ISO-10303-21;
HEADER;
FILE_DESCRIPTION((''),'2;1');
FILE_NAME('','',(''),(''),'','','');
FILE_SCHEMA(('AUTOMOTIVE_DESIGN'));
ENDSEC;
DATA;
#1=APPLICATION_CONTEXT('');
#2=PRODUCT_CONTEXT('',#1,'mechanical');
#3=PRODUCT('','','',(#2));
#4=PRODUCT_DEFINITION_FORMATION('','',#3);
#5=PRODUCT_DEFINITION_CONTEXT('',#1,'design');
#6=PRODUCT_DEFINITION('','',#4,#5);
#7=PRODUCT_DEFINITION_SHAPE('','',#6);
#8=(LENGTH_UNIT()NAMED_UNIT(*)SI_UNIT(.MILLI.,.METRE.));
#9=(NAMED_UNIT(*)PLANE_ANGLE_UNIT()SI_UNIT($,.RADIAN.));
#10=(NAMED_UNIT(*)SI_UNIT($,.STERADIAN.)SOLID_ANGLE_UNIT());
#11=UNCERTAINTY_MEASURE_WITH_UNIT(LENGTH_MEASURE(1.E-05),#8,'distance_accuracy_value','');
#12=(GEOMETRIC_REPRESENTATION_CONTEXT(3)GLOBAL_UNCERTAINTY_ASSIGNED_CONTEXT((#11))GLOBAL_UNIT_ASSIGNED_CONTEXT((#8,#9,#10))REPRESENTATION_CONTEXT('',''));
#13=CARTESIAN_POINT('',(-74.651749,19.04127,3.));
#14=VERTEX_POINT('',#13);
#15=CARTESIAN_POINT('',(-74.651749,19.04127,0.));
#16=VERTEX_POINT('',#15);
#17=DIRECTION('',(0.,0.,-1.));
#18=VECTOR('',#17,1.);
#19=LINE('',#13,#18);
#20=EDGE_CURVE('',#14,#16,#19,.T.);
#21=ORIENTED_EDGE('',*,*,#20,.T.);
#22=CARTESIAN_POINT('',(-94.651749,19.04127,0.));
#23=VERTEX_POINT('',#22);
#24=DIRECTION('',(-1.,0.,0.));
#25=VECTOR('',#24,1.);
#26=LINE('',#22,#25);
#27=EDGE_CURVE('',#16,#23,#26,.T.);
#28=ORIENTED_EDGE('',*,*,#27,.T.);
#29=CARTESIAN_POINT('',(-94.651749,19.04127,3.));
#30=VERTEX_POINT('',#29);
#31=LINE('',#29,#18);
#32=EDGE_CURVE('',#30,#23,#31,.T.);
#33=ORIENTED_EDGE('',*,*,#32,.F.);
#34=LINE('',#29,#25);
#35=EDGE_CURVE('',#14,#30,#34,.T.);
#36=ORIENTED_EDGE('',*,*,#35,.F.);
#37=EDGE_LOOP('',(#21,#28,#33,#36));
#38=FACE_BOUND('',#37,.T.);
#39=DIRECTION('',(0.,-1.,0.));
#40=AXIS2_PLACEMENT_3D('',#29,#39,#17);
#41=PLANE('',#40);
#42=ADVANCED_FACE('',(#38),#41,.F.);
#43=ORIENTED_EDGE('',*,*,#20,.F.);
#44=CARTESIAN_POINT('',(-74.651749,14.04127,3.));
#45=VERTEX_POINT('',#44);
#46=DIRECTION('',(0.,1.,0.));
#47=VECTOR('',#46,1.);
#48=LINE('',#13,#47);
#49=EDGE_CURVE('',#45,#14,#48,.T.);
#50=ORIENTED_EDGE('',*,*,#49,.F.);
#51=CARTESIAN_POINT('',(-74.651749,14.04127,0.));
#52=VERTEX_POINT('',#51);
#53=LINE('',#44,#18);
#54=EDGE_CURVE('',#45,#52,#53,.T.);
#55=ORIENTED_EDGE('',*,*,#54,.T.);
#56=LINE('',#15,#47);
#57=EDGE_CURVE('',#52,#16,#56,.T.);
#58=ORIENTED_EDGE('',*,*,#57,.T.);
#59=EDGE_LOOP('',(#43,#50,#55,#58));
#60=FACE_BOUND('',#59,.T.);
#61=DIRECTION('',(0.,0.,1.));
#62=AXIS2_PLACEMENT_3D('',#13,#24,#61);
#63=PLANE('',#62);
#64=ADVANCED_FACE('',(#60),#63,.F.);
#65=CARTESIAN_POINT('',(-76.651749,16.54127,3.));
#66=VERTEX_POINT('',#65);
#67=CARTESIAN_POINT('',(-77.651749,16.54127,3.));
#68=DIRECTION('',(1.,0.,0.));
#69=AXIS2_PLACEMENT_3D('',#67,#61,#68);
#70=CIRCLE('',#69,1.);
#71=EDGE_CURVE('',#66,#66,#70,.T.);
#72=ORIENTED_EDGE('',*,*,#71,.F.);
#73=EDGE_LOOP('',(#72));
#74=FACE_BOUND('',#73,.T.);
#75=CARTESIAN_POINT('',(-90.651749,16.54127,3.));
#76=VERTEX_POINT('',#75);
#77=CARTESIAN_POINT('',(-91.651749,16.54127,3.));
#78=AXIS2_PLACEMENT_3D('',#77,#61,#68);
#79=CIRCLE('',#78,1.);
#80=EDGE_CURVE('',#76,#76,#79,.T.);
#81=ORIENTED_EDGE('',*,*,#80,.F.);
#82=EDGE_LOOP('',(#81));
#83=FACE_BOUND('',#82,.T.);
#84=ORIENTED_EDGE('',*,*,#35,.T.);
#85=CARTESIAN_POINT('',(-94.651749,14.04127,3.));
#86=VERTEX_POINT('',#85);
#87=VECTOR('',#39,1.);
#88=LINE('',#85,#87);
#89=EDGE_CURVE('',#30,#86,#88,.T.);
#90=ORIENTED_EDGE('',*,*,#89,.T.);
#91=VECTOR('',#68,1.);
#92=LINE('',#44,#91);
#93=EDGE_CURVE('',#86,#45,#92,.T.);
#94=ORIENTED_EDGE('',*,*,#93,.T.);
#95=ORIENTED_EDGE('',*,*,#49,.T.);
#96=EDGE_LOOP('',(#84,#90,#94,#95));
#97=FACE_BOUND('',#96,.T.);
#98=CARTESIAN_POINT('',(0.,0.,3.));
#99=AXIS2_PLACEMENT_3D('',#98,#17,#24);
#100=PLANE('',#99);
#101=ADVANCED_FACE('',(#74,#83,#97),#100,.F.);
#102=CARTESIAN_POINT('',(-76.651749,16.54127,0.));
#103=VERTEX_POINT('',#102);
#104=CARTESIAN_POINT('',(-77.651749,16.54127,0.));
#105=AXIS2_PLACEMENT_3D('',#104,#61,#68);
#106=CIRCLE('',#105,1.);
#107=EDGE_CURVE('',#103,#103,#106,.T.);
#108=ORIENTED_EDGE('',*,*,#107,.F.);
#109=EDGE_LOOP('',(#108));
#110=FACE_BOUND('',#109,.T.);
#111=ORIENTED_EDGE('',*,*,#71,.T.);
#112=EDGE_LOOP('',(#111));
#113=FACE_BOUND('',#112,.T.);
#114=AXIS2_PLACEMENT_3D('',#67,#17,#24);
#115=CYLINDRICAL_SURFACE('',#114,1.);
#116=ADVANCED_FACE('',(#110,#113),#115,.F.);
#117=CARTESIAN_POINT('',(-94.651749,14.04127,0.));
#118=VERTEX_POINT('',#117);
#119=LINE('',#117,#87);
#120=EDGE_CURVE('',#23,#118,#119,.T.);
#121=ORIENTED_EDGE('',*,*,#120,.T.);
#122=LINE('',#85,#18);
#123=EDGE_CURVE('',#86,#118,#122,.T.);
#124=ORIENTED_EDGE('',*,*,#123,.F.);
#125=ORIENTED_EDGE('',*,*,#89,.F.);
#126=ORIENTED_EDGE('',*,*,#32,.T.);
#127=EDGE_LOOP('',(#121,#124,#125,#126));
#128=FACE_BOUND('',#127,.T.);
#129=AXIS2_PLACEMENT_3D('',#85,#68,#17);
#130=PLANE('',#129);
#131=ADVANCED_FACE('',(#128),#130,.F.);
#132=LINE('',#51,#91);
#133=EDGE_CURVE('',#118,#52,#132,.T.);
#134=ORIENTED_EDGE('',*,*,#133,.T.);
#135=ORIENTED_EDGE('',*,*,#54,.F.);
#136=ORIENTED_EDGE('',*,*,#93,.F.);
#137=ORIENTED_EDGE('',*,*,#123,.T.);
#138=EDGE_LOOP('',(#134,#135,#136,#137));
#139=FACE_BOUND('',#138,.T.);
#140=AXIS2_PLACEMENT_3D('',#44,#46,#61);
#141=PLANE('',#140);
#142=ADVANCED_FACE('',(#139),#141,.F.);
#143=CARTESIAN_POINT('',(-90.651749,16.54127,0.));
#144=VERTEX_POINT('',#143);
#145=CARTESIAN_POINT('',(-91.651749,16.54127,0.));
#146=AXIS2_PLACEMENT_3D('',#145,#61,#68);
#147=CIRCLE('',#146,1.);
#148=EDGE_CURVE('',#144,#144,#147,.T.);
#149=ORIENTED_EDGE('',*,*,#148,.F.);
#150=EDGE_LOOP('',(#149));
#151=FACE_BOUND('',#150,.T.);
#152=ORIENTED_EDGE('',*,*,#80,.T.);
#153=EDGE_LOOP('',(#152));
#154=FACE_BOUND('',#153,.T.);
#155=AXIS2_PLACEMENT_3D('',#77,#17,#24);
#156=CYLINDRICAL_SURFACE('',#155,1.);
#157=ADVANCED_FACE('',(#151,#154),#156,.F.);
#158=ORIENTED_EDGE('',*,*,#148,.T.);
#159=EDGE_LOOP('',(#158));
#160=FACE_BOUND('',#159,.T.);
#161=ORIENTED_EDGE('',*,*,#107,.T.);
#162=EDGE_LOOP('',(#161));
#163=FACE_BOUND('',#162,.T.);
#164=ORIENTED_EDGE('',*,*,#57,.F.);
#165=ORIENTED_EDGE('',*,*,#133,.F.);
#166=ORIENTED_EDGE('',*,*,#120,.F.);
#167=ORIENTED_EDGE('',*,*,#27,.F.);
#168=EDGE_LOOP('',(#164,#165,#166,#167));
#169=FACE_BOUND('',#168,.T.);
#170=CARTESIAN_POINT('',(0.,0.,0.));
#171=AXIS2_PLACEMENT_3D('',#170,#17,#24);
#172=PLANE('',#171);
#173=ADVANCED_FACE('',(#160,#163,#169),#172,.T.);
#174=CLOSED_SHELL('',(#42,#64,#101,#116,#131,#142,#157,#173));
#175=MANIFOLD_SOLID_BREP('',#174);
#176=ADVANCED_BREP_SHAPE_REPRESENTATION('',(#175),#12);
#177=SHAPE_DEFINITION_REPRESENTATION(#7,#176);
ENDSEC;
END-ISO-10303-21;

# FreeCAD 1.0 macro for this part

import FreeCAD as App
import Part
import Sketcher

V = App.Vector

doc = App.newDocument("Part")
params = doc.addObject("Spreadsheet::Sheet", "Params")
for row, (alias, value) in enumerate([
    ("sketch1_diameter", "2 mm"),
    ("sketch1_width", "20 mm"),
    ("sketch1_height", "5 mm"),
    ("pad1_length", "3 mm"),
], start=1):
    params.set(f"A{row}", alias)
    params.set(f"B{row}", "=" + value)
    params.setAlias(f"B{row}", alias)

body = doc.addObject("PartDesign::Body", "Body")

sketch1 = body.newObject("Sketcher::SketchObject", "Sketch")
sketch1.AttachmentSupport = (doc.getObject("XY_Plane"), [""])
sketch1.MapMode = "FlatFace"
sketch1.addGeometry(Part.LineSegment(V(-94.7, 19, 0), V(-94.7, 14, 0)), False)
sketch1.addGeometry(Part.LineSegment(V(-94.7, 14, 0), V(-74.7, 14, 0)), False)
sketch1.addGeometry(Part.LineSegment(V(-74.7, 14, 0), V(-74.7, 19, 0)), False)
sketch1.addGeometry(Part.LineSegment(V(-74.7, 19, 0), V(-94.7, 19, 0)), False)
sketch1.addGeometry(Part.Circle(V(-91.7, 16.5, 0), V(0, 0, 1), 1), False)
sketch1.addGeometry(Part.Circle(V(-77.7, 16.5, 0), V(0, 0, 1), 1), False)
sketch1.addConstraint(Sketcher.Constraint("Coincident", 0, 2, 1, 1))
sketch1.addConstraint(Sketcher.Constraint("Coincident", 1, 2, 2, 1))
sketch1.addConstraint(Sketcher.Constraint("Coincident", 2, 2, 3, 1))
sketch1.addConstraint(Sketcher.Constraint("Coincident", 3, 2, 0, 1))
sketch1.addConstraint(Sketcher.Constraint("Vertical", 0))
sketch1.addConstraint(Sketcher.Constraint("Horizontal", 1))
sketch1.addConstraint(Sketcher.Constraint("Vertical", 2))
sketch1.addConstraint(Sketcher.Constraint("Horizontal", 3))
sketch1.addConstraint(Sketcher.Constraint("Equal", 4, 5))
sketch1.addConstraint(Sketcher.Constraint("Horizontal", 4, 3, 5, 3))
sketch1.addConstraint(Sketcher.Constraint("Diameter", 4, 2.0))
sketch1.addConstraint(Sketcher.Constraint("DistanceX", 1, 1, 1, 2, 20.0))
sketch1.addConstraint(Sketcher.Constraint("DistanceY", 0, 2, 0, 1, 5.0))
sketch1.addConstraint(Sketcher.Constraint("DistanceX", 4, 3, 5, 3, 14.0))
sketch1.addConstraint(Sketcher.Constraint("DistanceX", 0, 2, 4, 3, 3.0))
sketch1.addConstraint(Sketcher.Constraint("DistanceY", 0, 2, 4, 3, 2.5))
sketch1.addConstraint(Sketcher.Constraint("DistanceX", 4, 3, -1, 1, 91.651749))
sketch1.addConstraint(Sketcher.Constraint("DistanceY", -1, 1, 4, 3, 16.54127))
sketch1.setExpression("Constraints[10]", "Params.sketch1_diameter")
sketch1.setExpression("Constraints[11]", "Params.sketch1_width")
sketch1.setExpression("Constraints[12]", "Params.sketch1_height")
pad1 = body.newObject("PartDesign::Pad", "Pad")
pad1.Profile = sketch1
pad1.setExpression("Length", "Params.pad1_length")

doc.recompute()
